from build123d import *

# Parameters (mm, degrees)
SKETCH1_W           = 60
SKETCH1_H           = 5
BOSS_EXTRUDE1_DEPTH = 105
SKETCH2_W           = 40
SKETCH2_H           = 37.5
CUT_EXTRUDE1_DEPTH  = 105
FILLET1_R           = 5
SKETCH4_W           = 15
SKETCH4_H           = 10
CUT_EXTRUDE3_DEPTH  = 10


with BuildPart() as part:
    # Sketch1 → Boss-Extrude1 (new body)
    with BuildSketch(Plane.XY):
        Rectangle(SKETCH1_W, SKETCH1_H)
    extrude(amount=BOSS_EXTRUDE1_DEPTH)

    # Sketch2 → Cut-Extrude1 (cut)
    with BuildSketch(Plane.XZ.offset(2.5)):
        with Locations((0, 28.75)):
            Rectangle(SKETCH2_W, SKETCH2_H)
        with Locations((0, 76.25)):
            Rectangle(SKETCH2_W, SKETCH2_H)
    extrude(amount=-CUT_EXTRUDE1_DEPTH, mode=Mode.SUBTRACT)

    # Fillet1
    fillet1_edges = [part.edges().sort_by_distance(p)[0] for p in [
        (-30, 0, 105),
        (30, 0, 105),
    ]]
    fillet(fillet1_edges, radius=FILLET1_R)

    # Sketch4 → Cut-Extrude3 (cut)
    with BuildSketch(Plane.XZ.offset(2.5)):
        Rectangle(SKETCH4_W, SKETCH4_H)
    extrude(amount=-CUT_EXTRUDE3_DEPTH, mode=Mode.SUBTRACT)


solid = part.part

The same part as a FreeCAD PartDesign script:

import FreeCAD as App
import Part
import Sketcher
Q = App.Units.Quantity


def edges_at(feature, points):
    """Names of the edges that pass closest to the given points."""
    edges = feature.Shape.Edges
    near = lambda p: min(range(len(edges)), key=lambda i: edges[i].distToShape(Part.Vertex(*p))[0])
    return sorted({f"Edge{near(p) + 1}" for p in points})


def add_polygon(sketch, points):
    """Adds a closed chain of lines whose ends are joined by coincident constraints."""
    first, n = sketch.GeometryCount, len(points)
    for a, b in zip(points, points[1:] + points[:1]):
        sketch.addGeometry(Part.LineSegment(App.Vector(*a, 0), App.Vector(*b, 0)), False)
    for i in range(n):
        sketch.addConstraint(Sketcher.Constraint("Coincident", first + i, 2, first + (i + 1) % n, 1))

doc = App.newDocument("Part")
body = doc.addObject("PartDesign::Body", "Body")

# Sketch on XY plane
sketch1 = doc.addObject("Sketcher::SketchObject", "Sketch")
body.addObject(sketch1)
sketch1.AttachmentSupport = (doc.XY_Plane, [""])
sketch1.MapMode = "FlatFace"
add_polygon(sketch1, [(-30, 2), (-30, -2), (30, -2), (30, 2)])  # lines 0-3
sketch1.addConstraint(Sketcher.Constraint("Vertical", 0))
sketch1.addConstraint(Sketcher.Constraint("Horizontal", 1))
sketch1.addConstraint(Sketcher.Constraint("Vertical", 2))
sketch1.addConstraint(Sketcher.Constraint("Horizontal", 3))
sketch1.addConstraint(Sketcher.Constraint("Symmetric", 0, 2, 2, 2, -1, 1))
sketch1.addConstraint(Sketcher.Constraint("DistanceX", 1, 1, 1, 2, Q("60 mm")))
sketch1.addConstraint(Sketcher.Constraint("DistanceY", 0, 2, 0, 1, Q("5 mm")))
pad1 = doc.addObject("PartDesign::Pad", "Pad")
body.addObject(pad1)
pad1.Profile = sketch1
pad1.Length = 105

# Sketch on XZ plane
sketch2 = doc.addObject("Sketcher::SketchObject", "Sketch001")
body.addObject(sketch2)
sketch2.AttachmentSupport = (doc.XZ_Plane, [""])
sketch2.MapMode = "FlatFace"
sketch2.AttachmentOffset = App.Placement(App.Vector(0, 0, 2.5), App.Rotation())
add_polygon(sketch2, [(-20, 48), (-20, 10), (20, 10), (20, 48)])  # lines 0-3
add_polygon(sketch2, [(-20, 95), (-20, 58), (20, 58), (20, 95)])  # lines 4-7
sketch2.addConstraint(Sketcher.Constraint("Vertical", 0))
sketch2.addConstraint(Sketcher.Constraint("Horizontal", 1))
sketch2.addConstraint(Sketcher.Constraint("Vertical", 2))
sketch2.addConstraint(Sketcher.Constraint("Horizontal", 3))
sketch2.addConstraint(Sketcher.Constraint("Vertical", 4))
sketch2.addConstraint(Sketcher.Constraint("Horizontal", 5))
sketch2.addConstraint(Sketcher.Constraint("Vertical", 6))
sketch2.addConstraint(Sketcher.Constraint("Horizontal", 7))
sketch2.addConstraint(Sketcher.Constraint("Vertical", 3, 2, 4, 2))
sketch2.addConstraint(Sketcher.Constraint("Vertical", 2, 2, 5, 2))
sketch2.addConstraint(Sketcher.Constraint("Equal", 2, 4))
sketch2.addConstraint(Sketcher.Constraint("DistanceX", 1, 1, 1, 2, Q("40 mm")))
sketch2.addConstraint(Sketcher.Constraint("DistanceY", 0, 2, 0, 1, Q("37.5 mm")))
sketch2.addConstraint(Sketcher.Constraint("DistanceX", 0, 2, -1, 1, Q("20 mm")))
sketch2.addConstraint(Sketcher.Constraint("DistanceY", -1, 1, 0, 2, Q("10 mm")))
sketch2.addConstraint(Sketcher.Constraint("DistanceY", -1, 1, 6, 2, Q("95 mm")))
pocket1 = doc.addObject("PartDesign::Pocket", "Pocket")
body.addObject(pocket1)
pocket1.Profile = sketch2
pocket1.Length = 105
doc.recompute()

fillet = doc.addObject("PartDesign::Fillet", "Fillet")
body.addObject(fillet)
fillet.Base = (pocket1, edges_at(pocket1, [(-30, 0, 105), (30, 0, 105)]))
fillet.Radius = 5

# Sketch on XZ plane
sketch3 = doc.addObject("Sketcher::SketchObject", "Sketch002")
body.addObject(sketch3)
sketch3.AttachmentSupport = (doc.XZ_Plane, [""])
sketch3.MapMode = "FlatFace"
sketch3.AttachmentOffset = App.Placement(App.Vector(0, 0, 2.5), App.Rotation())
add_polygon(sketch3, [(-8, 5), (-8, -5), (8, -5), (8, 5)])  # lines 0-3
sketch3.addConstraint(Sketcher.Constraint("Vertical", 0))
sketch3.addConstraint(Sketcher.Constraint("Horizontal", 1))
sketch3.addConstraint(Sketcher.Constraint("Vertical", 2))
sketch3.addConstraint(Sketcher.Constraint("Horizontal", 3))
sketch3.addConstraint(Sketcher.Constraint("Symmetric", 0, 2, 2, 2, -1, 1))
sketch3.addConstraint(Sketcher.Constraint("DistanceX", 1, 1, 1, 2, Q("15 mm")))
sketch3.addConstraint(Sketcher.Constraint("DistanceY", 0, 2, 0, 1, Q("10 mm")))
pocket2 = doc.addObject("PartDesign::Pocket", "Pocket001")
body.addObject(pocket2)
pocket2.Profile = sketch3
pocket2.Length = 10

doc.recompute()
